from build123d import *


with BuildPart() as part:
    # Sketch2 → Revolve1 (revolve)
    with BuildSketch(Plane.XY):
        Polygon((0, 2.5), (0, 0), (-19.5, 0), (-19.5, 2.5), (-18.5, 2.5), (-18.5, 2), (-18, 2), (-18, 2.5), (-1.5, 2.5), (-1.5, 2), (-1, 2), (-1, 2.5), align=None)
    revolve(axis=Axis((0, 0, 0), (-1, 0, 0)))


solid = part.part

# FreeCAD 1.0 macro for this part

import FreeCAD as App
import Part
import Sketcher
from FreeCAD import Vector


def add_polygon(sketch, points):
    """Adds a closed chain of lines whose ends are joined by coincident constraints."""
    first, n = sketch.GeometryCount, len(points)
    for a, b in zip(points, points[1:] + points[:1]):
        sketch.addGeometry(Part.LineSegment(App.Vector(*a, 0), App.Vector(*b, 0)), False)
    for i in range(n):
        sketch.addConstraint(Sketcher.Constraint("Coincident", first + i, 2, first + (i + 1) % n, 1))

doc = App.newDocument("Part")
body = doc.addObject("PartDesign::Body", "Body")

sketch1 = body.newObject("Sketcher::SketchObject", "Sketch")
sketch1.AttachmentSupport = (doc.getObject("XY_Plane"), [""])
sketch1.MapMode = "FlatFace"
add_polygon(sketch1, [(0, 0), (0, 2.5), (-1, 2.5), (-1, 2), (-1.5, 2), (-1.5, 2.5), (-18, 2.5), (-18, 2), (-18.5, 2), (-18.5, 2.5), (-19.5, 2.5), (-19.5, 0)])
sketch1.addConstraint([
    Sketcher.Constraint("Vertical", 0),
    Sketcher.Constraint("Horizontal", 1),
    Sketcher.Constraint("Vertical", 2),
    Sketcher.Constraint("Horizontal", 3),
    Sketcher.Constraint("Vertical", 4),
    Sketcher.Constraint("Horizontal", 5),
    Sketcher.Constraint("Vertical", 6),
    Sketcher.Constraint("Horizontal", 7),
    Sketcher.Constraint("Vertical", 8),
    Sketcher.Constraint("Horizontal", 9),
    Sketcher.Constraint("Vertical", 10),
    Sketcher.Constraint("Horizontal", 11),
    Sketcher.Constraint("Coincident", 11, 2, -1, 1),
    Sketcher.Constraint("Horizontal", 1, 2, 4, 2),
    Sketcher.Constraint("Horizontal", 3, 2, 6, 2),
    Sketcher.Constraint("Horizontal", 5, 2, 8, 2),
    Sketcher.Constraint("Equal", 3, 7),
    Sketcher.Constraint("Equal", 1, 9),
    Sketcher.Constraint("Equal", 7, 2),
    Sketcher.Constraint("DistanceX", 1, 2, 1, 1, 1.0),
    Sketcher.Constraint("DistanceX", 3, 2, 3, 1, 0.5),
    Sketcher.Constraint("DistanceX", 5, 2, 5, 1, 16.5),
    Sketcher.Constraint("DistanceY", 0, 1, 0, 2, 2.5),
])
revolution = body.newObject("PartDesign::Revolution", "Revolution")
revolution.Profile = sketch1
revolution.ReferenceAxis = (sketch1, ["H_Axis"])
revolution.Angle = 360

doc.recompute()
